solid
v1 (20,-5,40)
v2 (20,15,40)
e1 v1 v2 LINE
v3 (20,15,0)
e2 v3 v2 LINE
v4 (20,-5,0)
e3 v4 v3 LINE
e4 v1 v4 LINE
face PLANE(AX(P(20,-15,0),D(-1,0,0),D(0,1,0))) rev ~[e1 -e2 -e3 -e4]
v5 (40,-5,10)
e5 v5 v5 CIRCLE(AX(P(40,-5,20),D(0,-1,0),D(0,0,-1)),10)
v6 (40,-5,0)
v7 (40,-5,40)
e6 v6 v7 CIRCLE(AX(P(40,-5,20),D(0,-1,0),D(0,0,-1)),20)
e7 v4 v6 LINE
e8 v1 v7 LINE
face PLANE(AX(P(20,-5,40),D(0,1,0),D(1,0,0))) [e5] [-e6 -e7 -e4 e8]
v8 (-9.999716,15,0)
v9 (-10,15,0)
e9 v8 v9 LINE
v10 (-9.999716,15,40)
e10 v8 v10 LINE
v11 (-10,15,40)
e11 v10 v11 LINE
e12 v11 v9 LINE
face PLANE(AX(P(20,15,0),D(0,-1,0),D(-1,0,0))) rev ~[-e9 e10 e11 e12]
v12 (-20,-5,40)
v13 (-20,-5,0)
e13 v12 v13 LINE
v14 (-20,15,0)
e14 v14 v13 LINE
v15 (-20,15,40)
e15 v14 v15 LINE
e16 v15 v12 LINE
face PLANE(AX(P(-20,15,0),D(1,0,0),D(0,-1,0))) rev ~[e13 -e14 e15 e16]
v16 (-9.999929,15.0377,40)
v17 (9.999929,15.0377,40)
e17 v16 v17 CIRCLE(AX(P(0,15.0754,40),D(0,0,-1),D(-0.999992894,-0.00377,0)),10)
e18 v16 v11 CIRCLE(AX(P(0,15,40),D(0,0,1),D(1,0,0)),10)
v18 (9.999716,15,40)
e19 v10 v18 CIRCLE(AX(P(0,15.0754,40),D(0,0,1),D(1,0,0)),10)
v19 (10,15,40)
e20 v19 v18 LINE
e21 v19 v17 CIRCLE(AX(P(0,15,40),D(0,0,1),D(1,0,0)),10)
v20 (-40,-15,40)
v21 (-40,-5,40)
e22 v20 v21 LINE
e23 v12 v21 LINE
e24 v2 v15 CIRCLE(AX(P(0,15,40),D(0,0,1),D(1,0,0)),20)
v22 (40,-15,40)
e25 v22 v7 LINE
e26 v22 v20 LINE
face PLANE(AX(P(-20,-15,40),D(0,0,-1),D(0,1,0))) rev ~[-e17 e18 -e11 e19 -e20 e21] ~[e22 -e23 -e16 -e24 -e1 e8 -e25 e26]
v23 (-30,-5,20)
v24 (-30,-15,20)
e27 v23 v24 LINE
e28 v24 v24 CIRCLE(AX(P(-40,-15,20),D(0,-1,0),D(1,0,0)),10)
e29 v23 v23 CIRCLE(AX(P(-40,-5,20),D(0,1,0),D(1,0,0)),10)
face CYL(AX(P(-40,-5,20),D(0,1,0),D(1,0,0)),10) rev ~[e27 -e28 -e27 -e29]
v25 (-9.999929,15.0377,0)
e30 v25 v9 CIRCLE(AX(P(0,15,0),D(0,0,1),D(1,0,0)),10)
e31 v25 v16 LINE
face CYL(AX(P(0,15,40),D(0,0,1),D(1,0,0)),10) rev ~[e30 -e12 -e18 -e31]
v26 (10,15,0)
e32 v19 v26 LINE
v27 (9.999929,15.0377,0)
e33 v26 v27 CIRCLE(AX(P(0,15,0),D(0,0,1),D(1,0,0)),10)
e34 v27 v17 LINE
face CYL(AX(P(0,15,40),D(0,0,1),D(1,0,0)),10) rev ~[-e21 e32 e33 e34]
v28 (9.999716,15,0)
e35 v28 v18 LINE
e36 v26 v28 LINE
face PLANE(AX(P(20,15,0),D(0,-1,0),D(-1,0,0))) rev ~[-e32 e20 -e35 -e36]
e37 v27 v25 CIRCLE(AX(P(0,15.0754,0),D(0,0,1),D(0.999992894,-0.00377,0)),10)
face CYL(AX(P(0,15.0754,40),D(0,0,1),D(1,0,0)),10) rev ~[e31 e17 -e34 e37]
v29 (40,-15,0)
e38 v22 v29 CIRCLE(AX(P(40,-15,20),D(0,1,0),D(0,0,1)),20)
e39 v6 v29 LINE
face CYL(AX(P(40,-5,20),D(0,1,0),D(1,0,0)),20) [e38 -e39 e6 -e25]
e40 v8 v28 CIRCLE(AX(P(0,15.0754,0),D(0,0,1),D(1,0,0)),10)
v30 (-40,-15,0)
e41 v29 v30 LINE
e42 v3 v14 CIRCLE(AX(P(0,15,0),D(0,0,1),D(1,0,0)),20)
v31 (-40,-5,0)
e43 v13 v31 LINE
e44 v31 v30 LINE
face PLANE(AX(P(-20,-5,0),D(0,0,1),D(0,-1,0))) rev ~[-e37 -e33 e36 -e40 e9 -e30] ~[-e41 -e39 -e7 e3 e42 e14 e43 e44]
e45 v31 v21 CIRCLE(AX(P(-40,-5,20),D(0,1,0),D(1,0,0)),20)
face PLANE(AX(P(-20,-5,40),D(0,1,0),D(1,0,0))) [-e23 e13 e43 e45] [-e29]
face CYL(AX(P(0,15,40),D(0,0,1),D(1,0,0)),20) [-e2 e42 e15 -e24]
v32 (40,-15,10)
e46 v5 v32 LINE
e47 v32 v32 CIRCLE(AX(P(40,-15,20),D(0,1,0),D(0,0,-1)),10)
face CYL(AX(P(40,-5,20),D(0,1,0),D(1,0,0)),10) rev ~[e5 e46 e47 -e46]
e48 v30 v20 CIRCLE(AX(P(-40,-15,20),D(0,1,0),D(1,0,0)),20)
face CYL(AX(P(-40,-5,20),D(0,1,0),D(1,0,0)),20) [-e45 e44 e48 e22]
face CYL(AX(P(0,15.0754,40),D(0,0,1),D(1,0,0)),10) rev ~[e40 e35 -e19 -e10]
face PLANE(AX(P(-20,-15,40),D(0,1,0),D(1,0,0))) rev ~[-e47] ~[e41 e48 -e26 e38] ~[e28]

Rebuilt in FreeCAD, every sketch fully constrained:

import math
import FreeCAD as App
import Part
import Sketcher
from FreeCAD import Vector
Q = App.Units.Quantity


def add_polygon(sketch, points):
    """Adds a closed chain of lines whose ends are joined by coincident constraints."""
    first, n = sketch.GeometryCount, len(points)
    for a, b in zip(points, points[1:] + points[:1]):
        sketch.addGeometry(Part.LineSegment(App.Vector(*a, 0), App.Vector(*b, 0)), False)
    for i in range(n):
        sketch.addConstraint(Sketcher.Constraint("Coincident", first + i, 2, first + (i + 1) % n, 1))

doc = App.newDocument("Part")
body = doc.addObject("PartDesign::Body", "Body")

sketch1 = body.newObject("Sketcher::SketchObject", "Sketch")
sketch1.AttachmentSupport = (doc.getObject("XY_Plane"), [""])
sketch1.MapMode = "FlatFace"
add_polygon(sketch1, [(-20, 15), (-20, -15), (20, -15), (20, 15)])
sketch1.addConstraint([
    Sketcher.Constraint("Vertical", 0),
    Sketcher.Constraint("Horizontal", 1),
    Sketcher.Constraint("Vertical", 2),
    Sketcher.Constraint("Horizontal", 3),
    Sketcher.Constraint("Symmetric", 0, 2, 2, 2, -1, 1),
    Sketcher.Constraint("DistanceX", 1, 1, 1, 2, Q("40 mm")),
    Sketcher.Constraint("DistanceY", 0, 2, 0, 1, Q("30 mm")),
])
pad1 = body.newObject("PartDesign::Pad", "Pad")
pad1.Profile = sketch1
pad1.Length = 40

sketch2 = body.newObject("Sketcher::SketchObject", "Sketch001")
sketch2.AttachmentSupport = (doc.getObject("XY_Plane"), [""])
sketch2.MapMode = "FlatFace"
sketch2.AttachmentOffset = App.Placement(Vector(0, 0, 40), App.Rotation())
sketch2.addGeometry([
    Part.LineSegment(Vector(10, 15, 0), Vector(20, 15, 0)),
    Part.ArcOfCircle(Part.Circle(Vector(0, 15, 0), Vector(0, 0, 1), 20), math.radians(0), math.radians(180)),
    Part.LineSegment(Vector(-20, 15, 0), Vector(-10, 15, 0)),
    Part.ArcOfCircle(Part.Circle(Vector(0, 15, 0), Vector(0, 0, 1), 10), math.radians(0), math.radians(180)),
], False)
sketch2.addConstraint([
    Sketcher.Constraint("Coincident", 0, 2, 1, 1),
    Sketcher.Constraint("Coincident", 1, 2, 2, 1),
    Sketcher.Constraint("Coincident", 2, 2, 3, 2),
    Sketcher.Constraint("Coincident", 3, 1, 0, 1),
    Sketcher.Constraint("Horizontal", 0),
    Sketcher.Constraint("Horizontal", 2),
    Sketcher.Constraint("Coincident", 3, 3, 1, 3),
    Sketcher.Constraint("Symmetric", 0, 2, 1, 2, -2),
    Sketcher.Constraint("Horizontal", 3, 3, 0, 2),
    Sketcher.Constraint("Radius", 1, Q("20 mm")),
    Sketcher.Constraint("Radius", 3, Q("10 mm")),
    Sketcher.Constraint("DistanceY", -1, 1, 1, 3, Q("15 mm")),
])
pad2 = body.newObject("PartDesign::Pad", "Pad001")
pad2.Profile = sketch2
pad2.Length = 40
pad2.Reversed = True

sketch3 = body.newObject("Sketcher::SketchObject", "Sketch002")
sketch3.AttachmentSupport = (doc.getObject("XY_Plane"), [""])
sketch3.MapMode = "FlatFace"
sketch3.AttachmentOffset = App.Placement(Vector(0, 0, 40), App.Rotation())
sketch3.addGeometry(Part.Circle(Vector(0, 15.0754, 0), Vector(0, 0, 1), 10), False)
sketch3.addConstraint([
    Sketcher.Constraint("PointOnObject", 0, 3, -2),
    Sketcher.Constraint("Diameter", 0, Q("20 mm")),
    Sketcher.Constraint("DistanceY", -1, 1, 0, 3, Q("15.0754 mm")),
])
pocket1 = body.newObject("PartDesign::Pocket", "Pocket")
pocket1.Profile = sketch3
pocket1.Length = 40

sketch4 = body.newObject("Sketcher::SketchObject", "Sketch003")
sketch4.AttachmentSupport = (doc.getObject("YZ_Plane"), [""])
sketch4.MapMode = "FlatFace"
sketch4.AttachmentOffset = App.Placement(Vector(0, 0, 20), App.Rotation())
add_polygon(sketch4, [(-15, 0), (-5, 0), (-5, 40), (-15, 40)])
sketch4.addConstraint([
    Sketcher.Constraint("Horizontal", 0),
    Sketcher.Constraint("Vertical", 1),
    Sketcher.Constraint("Horizontal", 2),
    Sketcher.Constraint("Vertical", 3),
    Sketcher.Constraint("PointOnObject", 0, 2, -1),
    Sketcher.Constraint("DistanceX", 0, 1, 0, 2, Q("10 mm")),
    Sketcher.Constraint("DistanceY", 1, 1, 1, 2, Q("40 mm")),
    Sketcher.Constraint("DistanceX", 0, 2, -1, 1, Q("5 mm")),
])
pad3 = body.newObject("PartDesign::Pad", "Pad002")
pad3.Profile = sketch4
pad3.Length = 20

sketch5 = body.newObject("Sketcher::SketchObject", "Sketch004")
sketch5.AttachmentSupport = (doc.getObject("XZ_Plane"), [""])
sketch5.MapMode = "FlatFace"
sketch5.AttachmentOffset = App.Placement(Vector(0, 0, 5), App.Rotation())
sketch5.addGeometry([
    Part.ArcOfCircle(Part.Circle(Vector(40, 20, 0), Vector(0, 0, 1), 20), math.radians(-90), math.radians(90)),
    Part.LineSegment(Vector(40, 0, 0), Vector(40, 10, 0)),
    Part.ArcOfCircle(Part.Circle(Vector(40, 20, 0), Vector(0, 0, 1), 10), math.radians(-90), math.radians(90)),
    Part.LineSegment(Vector(40, 30, 0), Vector(40, 40, 0)),
], False)
sketch5.addConstraint([
    Sketcher.Constraint("Coincident", 0, 1, 1, 1),
    Sketcher.Constraint("Coincident", 1, 2, 2, 1),
    Sketcher.Constraint("Coincident", 2, 2, 3, 1),
    Sketcher.Constraint("Coincident", 3, 2, 0, 2),
    Sketcher.Constraint("Vertical", 1),
    Sketcher.Constraint("Vertical", 3),
    Sketcher.Constraint("Coincident", 2, 3, 0, 3),
    Sketcher.Constraint("PointOnObject", 0, 1, -1),
    Sketcher.Constraint("Vertical", 2, 3, 0, 1),
    Sketcher.Constraint("Vertical", 1, 2, 2, 2),
    Sketcher.Constraint("Radius", 0, Q("20 mm")),
    Sketcher.Constraint("Radius", 2, Q("10 mm")),
    Sketcher.Constraint("DistanceX", -1, 1, 0, 3, Q("40 mm")),
])
pad4 = body.newObject("PartDesign::Pad", "Pad003")
pad4.Profile = sketch5
pad4.Length = 10

sketch6 = body.newObject("Sketcher::SketchObject", "Sketch005")
sketch6.AttachmentSupport = (doc.getObject("XZ_Plane"), [""])
sketch6.MapMode = "FlatFace"
sketch6.AttachmentOffset = App.Placement(Vector(0, 0, 5), App.Rotation())
sketch6.addGeometry([
    Part.ArcOfCircle(Part.Circle(Vector(40, 20, 0), Vector(0, 0, 1), 10), math.radians(90), math.radians(270)),
    Part.LineSegment(Vector(40, 30, 0), Vector(40, 10, 0)),
], False)
sketch6.addConstraint([
    Sketcher.Constraint("Coincident", 0, 1, 1, 1),
    Sketcher.Constraint("Coincident", 1, 2, 0, 2),
    Sketcher.Constraint("Vertical", 1),
    Sketcher.Constraint("Radius", 0, Q("10 mm")),
    Sketcher.Constraint("DistanceY", -1, 1, 0, 3, Q("20 mm")),
    Sketcher.Constraint("DistanceX", -1, 1, 0, 3, Q("40 mm")),
    Sketcher.Constraint("DistanceX", -1, 1, 0, 1, Q("40 mm")),
])
pocket2 = body.newObject("PartDesign::Pocket", "Pocket001")
pocket2.Profile = sketch6
pocket2.Length = 10
pocket2.Reversed = True

sketch7 = body.newObject("Sketcher::SketchObject", "Sketch006")
sketch7.AttachmentSupport = (doc.getObject("YZ_Plane"), [""])
sketch7.MapMode = "FlatFace"
sketch7.AttachmentOffset = App.Placement(Vector(0, 0, -20), App.Rotation())
add_polygon(sketch7, [(-5, 0), (-15, 0), (-15, 40), (-5, 40)])
sketch7.addConstraint([
    Sketcher.Constraint("Horizontal", 0),
    Sketcher.Constraint("Vertical", 1),
    Sketcher.Constraint("Horizontal", 2),
    Sketcher.Constraint("Vertical", 3),
    Sketcher.Constraint("PointOnObject", 0, 2, -1),
    Sketcher.Constraint("DistanceX", 0, 2, 0, 1, Q("10 mm")),
    Sketcher.Constraint("DistanceY", 1, 1, 1, 2, Q("40 mm")),
    Sketcher.Constraint("DistanceX", 0, 2, -1, 1, Q("15 mm")),
])
pad5 = body.newObject("PartDesign::Pad", "Pad004")
pad5.Profile = sketch7
pad5.Length = 20
pad5.Reversed = True

sketch8 = body.newObject("Sketcher::SketchObject", "Sketch007")
sketch8.AttachmentSupport = (doc.getObject("XZ_Plane"), [""])
sketch8.MapMode = "FlatFace"
sketch8.AttachmentOffset = App.Placement(Vector(0, 0, 5), App.Rotation())
sketch8.addGeometry([
    Part.LineSegment(Vector(-40, 10, 0), Vector(-40, 0, 0)),
    Part.ArcOfCircle(Part.Circle(Vector(-40, 20, 0), Vector(0, 0, 1), 20), math.radians(90), math.radians(270)),
    Part.LineSegment(Vector(-40, 40, 0), Vector(-40, 30, 0)),
    Part.ArcOfCircle(Part.Circle(Vector(-40, 20, 0), Vector(0, 0, 1), 10), math.radians(90), math.radians(270)),
], False)
sketch8.addConstraint([
    Sketcher.Constraint("Coincident", 0, 2, 1, 2),
    Sketcher.Constraint("Coincident", 1, 1, 2, 1),
    Sketcher.Constraint("Coincident", 2, 2, 3, 1),
    Sketcher.Constraint("Coincident", 3, 2, 0, 1),
    Sketcher.Constraint("Vertical", 0),
    Sketcher.Constraint("Vertical", 2),
    Sketcher.Constraint("Coincident", 3, 3, 1, 3),
    Sketcher.Constraint("PointOnObject", 0, 2, -1),
    Sketcher.Constraint("Vertical", 3, 3, 0, 2),
    Sketcher.Constraint("Vertical", 0, 2, 1, 1),
    Sketcher.Constraint("Radius", 1, Q("20 mm")),
    Sketcher.Constraint("Radius", 3, Q("10 mm")),
    Sketcher.Constraint("DistanceX", 1, 3, -1, 1, Q("40 mm")),
])
pad6 = body.newObject("PartDesign::Pad", "Pad005")
pad6.Profile = sketch8
pad6.Length = 10

sketch9 = body.newObject("Sketcher::SketchObject", "Sketch008")
sketch9.AttachmentSupport = (doc.getObject("XZ_Plane"), [""])
sketch9.MapMode = "FlatFace"
sketch9.AttachmentOffset = App.Placement(Vector(0, 0, 5), App.Rotation())
sketch9.addGeometry([
    Part.ArcOfCircle(Part.Circle(Vector(-40, 20, 0), Vector(0, 0, 1), 10), math.radians(-90), math.radians(90)),
    Part.LineSegment(Vector(-40, 10, 0), Vector(-40, 30, 0)),
], False)
sketch9.addConstraint([
    Sketcher.Constraint("Coincident", 0, 1, 1, 1),
    Sketcher.Constraint("Coincident", 1, 2, 0, 2),
    Sketcher.Constraint("Vertical", 1),
    Sketcher.Constraint("Radius", 0, Q("10 mm")),
    Sketcher.Constraint("DistanceY", -1, 1, 0, 3, Q("20 mm")),
    Sketcher.Constraint("DistanceX", 0, 3, -1, 1, Q("40 mm")),
    Sketcher.Constraint("DistanceX", 0, 1, -1, 1, Q("40 mm")),
])
pocket3 = body.newObject("PartDesign::Pocket", "Pocket002")
pocket3.Profile = sketch9
pocket3.Length = 10
pocket3.Reversed = True

doc.recompute()
